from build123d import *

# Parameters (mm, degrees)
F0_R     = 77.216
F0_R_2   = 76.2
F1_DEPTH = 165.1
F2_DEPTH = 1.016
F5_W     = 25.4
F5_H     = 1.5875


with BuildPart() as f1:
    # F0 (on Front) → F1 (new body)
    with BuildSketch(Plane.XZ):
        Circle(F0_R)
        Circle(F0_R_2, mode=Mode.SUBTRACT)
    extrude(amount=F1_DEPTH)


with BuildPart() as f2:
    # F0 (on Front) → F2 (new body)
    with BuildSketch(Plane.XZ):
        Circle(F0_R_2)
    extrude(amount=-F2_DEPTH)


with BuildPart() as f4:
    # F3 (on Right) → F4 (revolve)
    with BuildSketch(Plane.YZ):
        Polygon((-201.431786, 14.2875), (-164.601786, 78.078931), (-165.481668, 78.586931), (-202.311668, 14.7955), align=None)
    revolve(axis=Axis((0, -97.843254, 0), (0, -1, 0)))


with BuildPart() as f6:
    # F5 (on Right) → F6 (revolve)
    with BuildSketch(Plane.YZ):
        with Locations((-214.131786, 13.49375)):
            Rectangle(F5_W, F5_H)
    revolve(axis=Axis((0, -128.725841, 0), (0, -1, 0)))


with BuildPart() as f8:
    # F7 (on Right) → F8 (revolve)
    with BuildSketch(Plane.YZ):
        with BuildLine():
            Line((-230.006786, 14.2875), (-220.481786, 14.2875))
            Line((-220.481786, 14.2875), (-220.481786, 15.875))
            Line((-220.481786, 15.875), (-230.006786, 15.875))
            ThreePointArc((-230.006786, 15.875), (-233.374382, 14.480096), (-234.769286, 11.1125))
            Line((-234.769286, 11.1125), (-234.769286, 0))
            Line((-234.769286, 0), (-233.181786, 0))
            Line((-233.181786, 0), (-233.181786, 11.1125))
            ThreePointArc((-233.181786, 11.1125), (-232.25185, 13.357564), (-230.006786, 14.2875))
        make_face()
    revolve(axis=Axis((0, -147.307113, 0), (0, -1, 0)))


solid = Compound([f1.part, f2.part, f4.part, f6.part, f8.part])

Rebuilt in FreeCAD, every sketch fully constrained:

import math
import FreeCAD as App
import Part
import Sketcher
from FreeCAD import Vector
Q = App.Units.Quantity

doc = App.newDocument("Part")
body = doc.addObject("PartDesign::Body", "Body")

# Sketch on XZ plane
sketch1 = body.newObject("Sketcher::SketchObject", "Sketch")
sketch1.AttachmentSupport = (doc.getObject("XZ_Plane"), [""])
sketch1.MapMode = "FlatFace"
sketch1.addGeometry([
    Part.Circle(Vector(0, 0, 0), Vector(0, 0, 1), 77.216),
    Part.Circle(Vector(0, 0, 0), Vector(0, 0, 1), 76.2),
], False)
sketch1.addConstraint([
    Sketcher.Constraint("Coincident", 0, 3, -1, 1),
    Sketcher.Constraint("Coincident", 1, 3, -1, 1),
    Sketcher.Constraint("Diameter", 1, Q("6 in")),
    Sketcher.Constraint("Diameter", 0, Q("6.08 in")),
])
pad1 = body.newObject("PartDesign::Pad", "Pad")
pad1.Profile = sketch1
pad1.Length = Q("6.5 in")
body2 = doc.addObject("PartDesign::Body", "Body001")

# Sketch on XZ plane
sketch2 = body2.newObject("Sketcher::SketchObject", "Sketch001")
sketch2.AttachmentSupport = (doc.getObject("XZ_Plane001"), [""])
sketch2.MapMode = "FlatFace"
sketch2.addGeometry(Part.Circle(Vector(0, 0, 0), Vector(0, 0, 1), 76.2), False)
sketch2.addConstraint([
    Sketcher.Constraint("Coincident", 0, 3, -1, 1),
    Sketcher.Constraint("Diameter", 0, Q("6 in")),
])
pad2 = body2.newObject("PartDesign::Pad", "Pad001")
pad2.Profile = sketch2
pad2.Length = Q("0.04 in")
pad2.Reversed = True
body3 = doc.addObject("PartDesign::Body", "Body002")

# Sketch on YZ plane
sketch3 = body3.newObject("Sketcher::SketchObject", "Sketch002")
sketch3.AttachmentSupport = (doc.getObject("YZ_Plane002"), [""])
sketch3.MapMode = "FlatFace"
sketch3.addGeometry([
    Part.LineSegment(Vector(-201.431786, 14.2875, 0), Vector(-164.601786, 78.078931, 0)),
    Part.LineSegment(Vector(-164.601786, 78.078931, 0), Vector(-165.481668, 78.586931, 0)),
    Part.LineSegment(Vector(-165.481668, 78.586931, 0), Vector(-202.311668, 14.7955, 0)),
    Part.LineSegment(Vector(-202.311668, 14.7955, 0), Vector(-201.431786, 14.2875, 0)),
], False)
sketch3.addConstraint([
    Sketcher.Constraint("Coincident", 0, 2, 1, 1),
    Sketcher.Constraint("Coincident", 1, 2, 2, 1),
    Sketcher.Constraint("Coincident", 2, 2, 3, 1),
    Sketcher.Constraint("Coincident", 3, 2, 0, 1),
    Sketcher.Constraint("Perpendicular", 0, 1),
    Sketcher.Constraint("Perpendicular", 1, 2),
    Sketcher.Constraint("Perpendicular", 2, 3),
    Sketcher.Constraint("Angle", 0, Q("60 deg")),
    Sketcher.Constraint("Distance", 0, Q("2.9 in")),
    Sketcher.Constraint("Distance", 1, Q("0.04 in")),
    Sketcher.Constraint("DistanceY", -1, 1, 3, 2, Q("0.5625 in")),
    Sketcher.Constraint("DistanceX", 1, 2, -1, 1, 165.481668),
])
revolution = body3.newObject("PartDesign::Revolution", "Revolution")
revolution.Profile = sketch3
revolution.ReferenceAxis = (sketch3, ["H_Axis"])
revolution.Angle = 360
body4 = doc.addObject("PartDesign::Body", "Body003")

# Sketch on YZ plane
sketch4 = body4.newObject("Sketcher::SketchObject", "Sketch003")
sketch4.AttachmentSupport = (doc.getObject("YZ_Plane003"), [""])
sketch4.MapMode = "FlatFace"
sketch4.addGeometry([
    Part.LineSegment(Vector(-226.831786, 14.2875, 0), Vector(-226.831786, 12.7, 0)),
    Part.LineSegment(Vector(-226.831786, 12.7, 0), Vector(-201.431786, 12.7, 0)),
    Part.LineSegment(Vector(-201.431786, 12.7, 0), Vector(-201.431786, 14.2875, 0)),
    Part.LineSegment(Vector(-201.431786, 14.2875, 0), Vector(-226.831786, 14.2875, 0)),
], False)
sketch4.addConstraint([
    Sketcher.Constraint("Coincident", 0, 2, 1, 1),
    Sketcher.Constraint("Coincident", 1, 2, 2, 1),
    Sketcher.Constraint("Coincident", 2, 2, 3, 1),
    Sketcher.Constraint("Coincident", 3, 2, 0, 1),
    Sketcher.Constraint("Vertical", 0),
    Sketcher.Constraint("Horizontal", 1),
    Sketcher.Constraint("Vertical", 2),
    Sketcher.Constraint("Horizontal", 3),
    Sketcher.Constraint("DistanceX", 1, 1, 1, 2, Q("1 in")),
    Sketcher.Constraint("DistanceY", -1, 1, 0, 2, Q("0.5 in")),
    Sketcher.Constraint("DistanceY", 0, 2, 0, 1, Q("0.0625 in")),
    Sketcher.Constraint("DistanceX", 0, 2, -1, 1, 226.831786),
])
revolution2 = body4.newObject("PartDesign::Revolution", "Revolution001")
revolution2.Profile = sketch4
revolution2.ReferenceAxis = (sketch4, ["H_Axis"])
revolution2.Angle = 360
body5 = doc.addObject("PartDesign::Body", "Body004")

# Sketch on YZ plane
sketch5 = body5.newObject("Sketcher::SketchObject", "Sketch004")
sketch5.AttachmentSupport = (doc.getObject("YZ_Plane004"), [""])
sketch5.MapMode = "FlatFace"
sketch5.addGeometry([
    Part.LineSegment(Vector(-230.006786, 14.2875, 0), Vector(-220.481786, 14.2875, 0)),  # 0
    Part.LineSegment(Vector(-220.481786, 14.2875, 0), Vector(-220.481786, 15.875, 0)),  # 1
    Part.LineSegment(Vector(-220.481786, 15.875, 0), Vector(-230.006786, 15.875, 0)),  # 2
    Part.ArcOfCircle(Part.Circle(Vector(-230.006786, 11.1125, 0), Vector(0, 0, 1), 4.7625), math.radians(90.000002), math.radians(179.999998)),  # 3
    Part.LineSegment(Vector(-234.769286, 11.1125, 0), Vector(-234.769286, 0, 0)),  # 4
    Part.LineSegment(Vector(-234.769286, 0, 0), Vector(-233.181786, 0, 0)),  # 5
    Part.LineSegment(Vector(-233.181786, 0, 0), Vector(-233.181786, 11.1125, 0)),  # 6
    Part.ArcOfCircle(Part.Circle(Vector(-230.006786, 11.1125, 0), Vector(0, 0, 1), 3.175), math.radians(90.000002), math.radians(179.999998)),  # 7
], False)
sketch5.addConstraint([
    Sketcher.Constraint("Coincident", 0, 2, 1, 1),
    Sketcher.Constraint("Coincident", 1, 2, 2, 1),
    Sketcher.Constraint("Tangent", 2, 2, 3, 1),
    Sketcher.Constraint("Tangent", 3, 2, 4, 1),
    Sketcher.Constraint("Coincident", 4, 2, 5, 1),
    Sketcher.Constraint("Coincident", 5, 2, 6, 1),
    Sketcher.Constraint("Tangent", 6, 2, 7, 2),
    Sketcher.Constraint("Tangent", 7, 1, 0, 1),
    Sketcher.Constraint("Horizontal", 0),
    Sketcher.Constraint("Vertical", 1),
    Sketcher.Constraint("Horizontal", 2),
    Sketcher.Constraint("Vertical", 4),
    Sketcher.Constraint("Horizontal", 5),
    Sketcher.Constraint("Vertical", 6),
    Sketcher.Constraint("Coincident", 7, 3, 3, 3),
    Sketcher.Constraint("PointOnObject", 4, 2, -1),
    Sketcher.Constraint("Radius", 3, Q("0.1875 in")),
    Sketcher.Constraint("Radius", 7, Q("0.125 in")),
    Sketcher.Constraint("DistanceX", 0, 1, 0, 2, Q("0.375 in")),
    Sketcher.Constraint("DistanceY", 4, 2, 4, 1, Q("0.4375 in")),
    Sketcher.Constraint("DistanceX", 3, 3, -1, 1, 230.006786),
])
revolution3 = body5.newObject("PartDesign::Revolution", "Revolution002")
revolution3.Profile = sketch5
revolution3.ReferenceAxis = (sketch5, ["H_Axis"])
revolution3.Angle = 360

doc.recompute()
